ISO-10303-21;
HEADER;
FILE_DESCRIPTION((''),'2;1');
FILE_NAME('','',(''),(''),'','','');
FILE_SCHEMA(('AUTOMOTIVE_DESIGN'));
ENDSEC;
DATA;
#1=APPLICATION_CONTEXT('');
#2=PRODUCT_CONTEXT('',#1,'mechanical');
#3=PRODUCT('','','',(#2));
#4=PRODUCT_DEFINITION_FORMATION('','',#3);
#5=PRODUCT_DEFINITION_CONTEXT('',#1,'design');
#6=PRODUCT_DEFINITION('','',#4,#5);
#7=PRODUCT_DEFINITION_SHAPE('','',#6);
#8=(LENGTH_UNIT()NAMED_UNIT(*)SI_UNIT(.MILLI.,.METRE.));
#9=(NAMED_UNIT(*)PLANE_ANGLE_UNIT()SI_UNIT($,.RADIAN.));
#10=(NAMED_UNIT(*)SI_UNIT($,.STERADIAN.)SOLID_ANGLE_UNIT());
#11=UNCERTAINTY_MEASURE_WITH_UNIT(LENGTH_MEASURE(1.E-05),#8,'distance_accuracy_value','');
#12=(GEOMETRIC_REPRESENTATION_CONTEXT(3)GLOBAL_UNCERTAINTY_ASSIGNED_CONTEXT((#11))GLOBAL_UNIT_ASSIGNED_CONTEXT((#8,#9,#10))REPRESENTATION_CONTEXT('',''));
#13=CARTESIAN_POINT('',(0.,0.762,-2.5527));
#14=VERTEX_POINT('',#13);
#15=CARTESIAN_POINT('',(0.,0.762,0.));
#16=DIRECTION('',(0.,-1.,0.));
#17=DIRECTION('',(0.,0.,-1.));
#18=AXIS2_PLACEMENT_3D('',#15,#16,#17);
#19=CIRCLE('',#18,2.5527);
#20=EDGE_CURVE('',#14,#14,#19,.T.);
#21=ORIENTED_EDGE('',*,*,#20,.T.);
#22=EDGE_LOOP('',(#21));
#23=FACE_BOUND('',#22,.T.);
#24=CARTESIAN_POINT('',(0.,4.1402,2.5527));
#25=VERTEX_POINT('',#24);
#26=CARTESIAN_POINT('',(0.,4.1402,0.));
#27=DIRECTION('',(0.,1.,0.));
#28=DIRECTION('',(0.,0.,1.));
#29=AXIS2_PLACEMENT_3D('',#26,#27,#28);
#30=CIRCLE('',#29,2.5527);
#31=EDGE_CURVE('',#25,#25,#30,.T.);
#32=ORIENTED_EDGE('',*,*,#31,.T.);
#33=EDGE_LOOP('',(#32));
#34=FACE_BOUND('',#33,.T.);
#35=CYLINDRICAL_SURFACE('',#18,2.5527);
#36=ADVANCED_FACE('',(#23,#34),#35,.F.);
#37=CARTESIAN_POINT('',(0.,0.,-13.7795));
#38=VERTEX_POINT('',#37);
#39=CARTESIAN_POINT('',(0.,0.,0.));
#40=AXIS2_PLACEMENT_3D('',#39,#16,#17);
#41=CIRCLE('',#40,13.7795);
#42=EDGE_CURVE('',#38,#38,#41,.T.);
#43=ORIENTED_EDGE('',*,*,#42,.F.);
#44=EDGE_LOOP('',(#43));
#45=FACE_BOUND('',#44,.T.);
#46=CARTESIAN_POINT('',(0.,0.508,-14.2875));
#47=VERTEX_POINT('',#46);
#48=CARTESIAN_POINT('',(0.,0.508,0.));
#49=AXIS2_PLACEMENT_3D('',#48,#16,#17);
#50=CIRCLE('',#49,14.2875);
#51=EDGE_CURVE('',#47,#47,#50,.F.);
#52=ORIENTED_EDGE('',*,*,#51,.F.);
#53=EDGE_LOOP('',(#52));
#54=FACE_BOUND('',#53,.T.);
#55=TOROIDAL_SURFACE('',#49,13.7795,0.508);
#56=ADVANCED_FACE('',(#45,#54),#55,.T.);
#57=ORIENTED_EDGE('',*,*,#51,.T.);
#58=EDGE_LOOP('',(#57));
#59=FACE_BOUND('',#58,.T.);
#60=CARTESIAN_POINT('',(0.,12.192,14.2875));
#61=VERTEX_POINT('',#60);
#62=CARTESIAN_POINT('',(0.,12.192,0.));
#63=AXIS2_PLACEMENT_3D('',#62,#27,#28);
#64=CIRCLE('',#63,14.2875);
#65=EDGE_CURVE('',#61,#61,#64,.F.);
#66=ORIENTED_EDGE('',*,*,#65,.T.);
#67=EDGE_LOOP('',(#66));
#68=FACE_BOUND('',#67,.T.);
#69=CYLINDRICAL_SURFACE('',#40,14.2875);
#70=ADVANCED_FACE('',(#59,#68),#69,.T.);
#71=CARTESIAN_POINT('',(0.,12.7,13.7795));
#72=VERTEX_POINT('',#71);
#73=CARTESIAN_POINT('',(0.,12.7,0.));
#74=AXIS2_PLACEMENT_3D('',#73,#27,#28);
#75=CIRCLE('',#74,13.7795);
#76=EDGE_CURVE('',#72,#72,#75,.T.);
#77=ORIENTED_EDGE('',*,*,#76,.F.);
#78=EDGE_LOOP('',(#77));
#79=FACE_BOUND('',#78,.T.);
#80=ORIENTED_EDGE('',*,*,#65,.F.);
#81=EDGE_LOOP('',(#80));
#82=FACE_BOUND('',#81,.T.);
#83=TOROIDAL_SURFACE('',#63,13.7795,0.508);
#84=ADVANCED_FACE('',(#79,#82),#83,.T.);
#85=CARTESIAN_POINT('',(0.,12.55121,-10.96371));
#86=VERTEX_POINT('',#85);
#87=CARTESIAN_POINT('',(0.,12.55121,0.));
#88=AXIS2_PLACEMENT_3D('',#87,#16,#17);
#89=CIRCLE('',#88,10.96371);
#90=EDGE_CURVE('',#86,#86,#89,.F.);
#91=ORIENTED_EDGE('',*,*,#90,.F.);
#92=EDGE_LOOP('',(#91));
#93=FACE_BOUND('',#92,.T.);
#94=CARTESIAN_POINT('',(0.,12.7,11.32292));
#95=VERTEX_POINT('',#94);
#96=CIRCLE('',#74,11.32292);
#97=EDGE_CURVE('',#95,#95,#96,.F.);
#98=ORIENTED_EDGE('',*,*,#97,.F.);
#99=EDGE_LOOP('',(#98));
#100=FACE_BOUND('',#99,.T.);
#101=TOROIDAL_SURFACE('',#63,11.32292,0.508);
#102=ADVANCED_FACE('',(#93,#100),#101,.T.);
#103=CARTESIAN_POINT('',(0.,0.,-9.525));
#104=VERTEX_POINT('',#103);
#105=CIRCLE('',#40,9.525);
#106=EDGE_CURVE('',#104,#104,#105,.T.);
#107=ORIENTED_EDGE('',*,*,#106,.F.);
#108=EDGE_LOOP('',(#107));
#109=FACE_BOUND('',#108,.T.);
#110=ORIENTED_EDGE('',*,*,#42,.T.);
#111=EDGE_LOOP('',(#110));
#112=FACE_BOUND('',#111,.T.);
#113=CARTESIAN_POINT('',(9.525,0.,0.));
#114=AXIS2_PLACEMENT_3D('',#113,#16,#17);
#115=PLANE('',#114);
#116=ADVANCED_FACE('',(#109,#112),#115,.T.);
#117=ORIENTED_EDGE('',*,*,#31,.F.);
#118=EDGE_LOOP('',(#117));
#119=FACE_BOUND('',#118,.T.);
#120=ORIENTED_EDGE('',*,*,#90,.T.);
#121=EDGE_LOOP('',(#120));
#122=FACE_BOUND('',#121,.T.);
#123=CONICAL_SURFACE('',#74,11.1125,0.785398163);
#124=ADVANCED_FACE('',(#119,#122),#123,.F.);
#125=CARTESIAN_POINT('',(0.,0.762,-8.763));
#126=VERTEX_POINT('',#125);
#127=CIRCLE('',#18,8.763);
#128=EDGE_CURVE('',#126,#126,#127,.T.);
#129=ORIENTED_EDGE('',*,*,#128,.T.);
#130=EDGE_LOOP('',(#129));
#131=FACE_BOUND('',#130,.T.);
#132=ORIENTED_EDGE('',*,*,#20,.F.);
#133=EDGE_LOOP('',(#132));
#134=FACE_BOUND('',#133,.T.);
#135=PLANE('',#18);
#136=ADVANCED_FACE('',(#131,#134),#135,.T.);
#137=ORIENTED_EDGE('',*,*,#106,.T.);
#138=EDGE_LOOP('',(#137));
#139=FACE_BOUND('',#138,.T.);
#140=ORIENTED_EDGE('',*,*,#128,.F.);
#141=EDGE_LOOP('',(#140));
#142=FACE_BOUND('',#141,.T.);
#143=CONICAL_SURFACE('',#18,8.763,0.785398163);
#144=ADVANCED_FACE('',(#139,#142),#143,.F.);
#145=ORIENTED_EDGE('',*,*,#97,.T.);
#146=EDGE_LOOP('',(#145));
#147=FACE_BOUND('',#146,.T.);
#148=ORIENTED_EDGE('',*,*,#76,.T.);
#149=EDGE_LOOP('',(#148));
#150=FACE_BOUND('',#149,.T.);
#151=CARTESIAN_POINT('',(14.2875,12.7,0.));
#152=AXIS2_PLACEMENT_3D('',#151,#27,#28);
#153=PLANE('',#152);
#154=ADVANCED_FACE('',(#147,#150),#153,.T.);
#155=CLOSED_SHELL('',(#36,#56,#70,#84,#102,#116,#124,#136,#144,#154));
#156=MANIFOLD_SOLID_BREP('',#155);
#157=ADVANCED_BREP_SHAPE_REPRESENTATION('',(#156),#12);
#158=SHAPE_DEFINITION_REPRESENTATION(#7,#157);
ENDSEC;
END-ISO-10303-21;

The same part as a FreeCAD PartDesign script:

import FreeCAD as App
import Part
import Sketcher

V = App.Vector
Q = App.Units.Quantity


def edges_at(feature, points):
    """Names of the edges that pass closest to the given points."""
    edges = feature.Shape.Edges
    near = lambda p: min(range(len(edges)), key=lambda i: edges[i].distToShape(Part.Vertex(*p))[0])
    return sorted({f"Edge{near(p) + 1}" for p in points})

doc = App.newDocument("Part")
body = doc.addObject("PartDesign::Body", "Body")

# Sketch on XY plane
sketch1 = doc.addObject("Sketcher::SketchObject", "Sketch")
body.addObject(sketch1)
sketch1.AttachmentSupport = (doc.XY_Plane, [""])
sketch1.MapMode = "FlatFace"
sketch1.addGeometry(Part.LineSegment(V(0, 0.8, 0), V(8.8, 0.8, 0)), False)
sketch1.addGeometry(Part.LineSegment(V(8.8, 0.8, 0), V(9.5, 0, 0)), False)
sketch1.addGeometry(Part.LineSegment(V(9.5, 0, 0), V(14.3, 0, 0)), False)
sketch1.addGeometry(Part.LineSegment(V(14.3, 0, 0), V(14.3, 12.7, 0)), False)
sketch1.addGeometry(Part.LineSegment(V(14.3, 12.7, 0), V(11.1, 12.7, 0)), False)
sketch1.addGeometry(Part.LineSegment(V(11.1, 12.7, 0), V(0, 1.6, 0)), False)
sketch1.addGeometry(Part.LineSegment(V(0, 1.6, 0), V(0, 0.8, 0)), False)
sketch1.addConstraint(Sketcher.Constraint("Coincident", 0, 2, 1, 1))
sketch1.addConstraint(Sketcher.Constraint("Coincident", 1, 2, 2, 1))
sketch1.addConstraint(Sketcher.Constraint("Coincident", 2, 2, 3, 1))
sketch1.addConstraint(Sketcher.Constraint("Coincident", 3, 2, 4, 1))
sketch1.addConstraint(Sketcher.Constraint("Coincident", 4, 2, 5, 1))
sketch1.addConstraint(Sketcher.Constraint("Coincident", 5, 2, 6, 1))
sketch1.addConstraint(Sketcher.Constraint("Coincident", 6, 2, 0, 1))
sketch1.addConstraint(Sketcher.Constraint("Horizontal", 0))
sketch1.addConstraint(Sketcher.Constraint("Horizontal", 2))
sketch1.addConstraint(Sketcher.Constraint("Vertical", 3))
sketch1.addConstraint(Sketcher.Constraint("Horizontal", 4))
sketch1.addConstraint(Sketcher.Constraint("Vertical", 6))
sketch1.addConstraint(Sketcher.Constraint("PointOnObject", 1, 2, -1))
sketch1.addConstraint(Sketcher.Constraint("PointOnObject", 5, 2, -2))
sketch1.addConstraint(Sketcher.Constraint("Perpendicular", 1, 5))
sketch1.addConstraint(Sketcher.Constraint("DistanceY", 3, 1, 3, 2, Q("0.5 in")))
sketch1.addConstraint(Sketcher.Constraint("Angle", 1, Q("-45 deg")))
sketch1.addConstraint(Sketcher.Constraint("DistanceX", 0, 1, 0, 2, Q("0.345 in")))
sketch1.addConstraint(Sketcher.Constraint("DistanceX", 2, 1, 2, 2, Q("0.1875 in")))
sketch1.addConstraint(Sketcher.Constraint("DistanceX", 4, 2, 4, 1, Q("0.125 in")))
sketch1.addConstraint(Sketcher.Constraint("DistanceY", -1, 1, 0, 2, Q("0.03 in")))
revolution = doc.addObject("PartDesign::Revolution", "Revolution")
body.addObject(revolution)
revolution.Profile = sketch1
revolution.ReferenceAxis = (sketch1, ["V_Axis"])
revolution.Angle = 360
doc.recompute()

fillet = doc.addObject("PartDesign::Fillet", "Fillet")
body.addObject(fillet)
fillet.Base = (revolution, edges_at(revolution, [(0, 0, 14.287), (0, 12.7, 14.287), (0, 12.7, 11.113)]))
fillet.Radius = Q("0.02 in")

# Sketch on XZ plane
sketch2 = doc.addObject("Sketcher::SketchObject", "Sketch001")
body.addObject(sketch2)
sketch2.AttachmentSupport = (doc.XZ_Plane, [""])
sketch2.MapMode = "FlatFace"
sketch2.AttachmentOffset = App.Placement(V(0, 0, -0.03 * 25.4), App.Rotation())
sketch2.addGeometry(Part.Circle(V(0, 0, 0), V(0, 0, 1), 2.6), False)
sketch2.addConstraint(Sketcher.Constraint("Coincident", 0, 3, -1, 1))
sketch2.addConstraint(Sketcher.Constraint("Diameter", 0, Q("0.201 in")))
doc.recompute()
hole = doc.addObject("PartDesign::Hole", "Hole")
body.addObject(hole)
hole.Profile = sketch2
hole.ThreadType = "None"
hole.Diameter = Q("0.201 in")
hole.DepthType = "ThroughAll"

doc.recompute()
